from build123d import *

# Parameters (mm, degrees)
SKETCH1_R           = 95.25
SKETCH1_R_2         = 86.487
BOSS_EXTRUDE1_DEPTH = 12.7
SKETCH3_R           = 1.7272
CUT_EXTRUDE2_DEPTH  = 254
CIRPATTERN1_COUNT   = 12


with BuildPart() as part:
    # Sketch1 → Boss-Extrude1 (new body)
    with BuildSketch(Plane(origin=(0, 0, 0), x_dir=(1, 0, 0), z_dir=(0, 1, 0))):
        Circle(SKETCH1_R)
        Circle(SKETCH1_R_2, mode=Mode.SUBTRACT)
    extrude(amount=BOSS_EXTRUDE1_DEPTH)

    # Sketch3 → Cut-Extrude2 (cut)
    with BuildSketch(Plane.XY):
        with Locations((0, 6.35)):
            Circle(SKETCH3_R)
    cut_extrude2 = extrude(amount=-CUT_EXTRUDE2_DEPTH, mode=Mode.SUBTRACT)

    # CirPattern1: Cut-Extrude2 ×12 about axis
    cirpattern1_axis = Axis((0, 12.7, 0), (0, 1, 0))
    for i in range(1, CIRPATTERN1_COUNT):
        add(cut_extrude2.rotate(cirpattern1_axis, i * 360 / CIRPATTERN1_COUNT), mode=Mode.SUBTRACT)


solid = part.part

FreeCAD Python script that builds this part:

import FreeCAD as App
import Part
import Sketcher
from FreeCAD import Vector
Q = App.Units.Quantity

doc = App.newDocument("Part")
params = doc.addObject("Spreadsheet::Sheet", "Params")
for row, (alias, value) in enumerate([
    ("sketch1_diameter", "7.5 in"),
    ("sketch1_diameter2", "6.81 in"),
    ("pad1_length", "0.5 in"),
    ("sketch2_diameter", "0.136 in"),
    ("pocket1_length", "10 in"),
], start=1):
    params.set(f"A{row}", alias)
    params.set(f"B{row}", "=" + value)
    params.setAlias(f"B{row}", alias)

body = doc.addObject("PartDesign::Body", "Body")

# Sketch on XZ plane
sketch1 = body.newObject("Sketcher::SketchObject", "Sketch")
sketch1.AttachmentSupport = (doc.getObject("XZ_Plane"), [""])
sketch1.MapMode = "FlatFace"
sketch1.addGeometry([
    Part.Circle(Vector(0, 0, 0), Vector(0, 0, 1), 95),
    Part.Circle(Vector(0, 0, 0), Vector(0, 0, 1), 86),
], False)
sketch1.addConstraint([
    Sketcher.Constraint("Coincident", 0, 3, -1, 1),
    Sketcher.Constraint("Coincident", 1, 3, -1, 1),
    Sketcher.Constraint("Diameter", 0, Q("7.5 in")),
    Sketcher.Constraint("Diameter", 1, Q("6.81 in")),
])
sketch1.setExpression("Constraints[2]", "Params.sketch1_diameter")
sketch1.setExpression("Constraints[3]", "Params.sketch1_diameter2")
pad1 = body.newObject("PartDesign::Pad", "Pad")
pad1.Profile = sketch1
pad1.setExpression("Length", "Params.pad1_length")
pad1.Reversed = True

# Sketch on XY plane
sketch2 = body.newObject("Sketcher::SketchObject", "Sketch001")
sketch2.AttachmentSupport = (doc.getObject("XY_Plane"), [""])
sketch2.MapMode = "FlatFace"
sketch2.addGeometry(Part.Circle(Vector(0, 6.3, 0), Vector(0, 0, 1), 1.7), False)
sketch2.addConstraint([
    Sketcher.Constraint("PointOnObject", 0, 3, -2),
    Sketcher.Constraint("Diameter", 0, Q("0.136 in")),
    Sketcher.Constraint("DistanceY", -1, 1, 0, 3, Q("0.25 in")),
])
sketch2.setExpression("Constraints[1]", "Params.sketch2_diameter")
pocket1 = body.newObject("PartDesign::Pocket", "Pocket")
pocket1.Profile = sketch2
pocket1.setExpression("Length", "Params.pocket1_length")
doc.recompute()

polarpattern = body.newObject("PartDesign::PolarPattern", "PolarPattern")
polarpattern.Originals = [pocket1]
polarpattern.Axis = (doc.getObject("Y_Axis"), [""])
polarpattern.Angle = 360
polarpattern.Occurrences = 12
body.Tip = polarpattern

doc.recompute()
